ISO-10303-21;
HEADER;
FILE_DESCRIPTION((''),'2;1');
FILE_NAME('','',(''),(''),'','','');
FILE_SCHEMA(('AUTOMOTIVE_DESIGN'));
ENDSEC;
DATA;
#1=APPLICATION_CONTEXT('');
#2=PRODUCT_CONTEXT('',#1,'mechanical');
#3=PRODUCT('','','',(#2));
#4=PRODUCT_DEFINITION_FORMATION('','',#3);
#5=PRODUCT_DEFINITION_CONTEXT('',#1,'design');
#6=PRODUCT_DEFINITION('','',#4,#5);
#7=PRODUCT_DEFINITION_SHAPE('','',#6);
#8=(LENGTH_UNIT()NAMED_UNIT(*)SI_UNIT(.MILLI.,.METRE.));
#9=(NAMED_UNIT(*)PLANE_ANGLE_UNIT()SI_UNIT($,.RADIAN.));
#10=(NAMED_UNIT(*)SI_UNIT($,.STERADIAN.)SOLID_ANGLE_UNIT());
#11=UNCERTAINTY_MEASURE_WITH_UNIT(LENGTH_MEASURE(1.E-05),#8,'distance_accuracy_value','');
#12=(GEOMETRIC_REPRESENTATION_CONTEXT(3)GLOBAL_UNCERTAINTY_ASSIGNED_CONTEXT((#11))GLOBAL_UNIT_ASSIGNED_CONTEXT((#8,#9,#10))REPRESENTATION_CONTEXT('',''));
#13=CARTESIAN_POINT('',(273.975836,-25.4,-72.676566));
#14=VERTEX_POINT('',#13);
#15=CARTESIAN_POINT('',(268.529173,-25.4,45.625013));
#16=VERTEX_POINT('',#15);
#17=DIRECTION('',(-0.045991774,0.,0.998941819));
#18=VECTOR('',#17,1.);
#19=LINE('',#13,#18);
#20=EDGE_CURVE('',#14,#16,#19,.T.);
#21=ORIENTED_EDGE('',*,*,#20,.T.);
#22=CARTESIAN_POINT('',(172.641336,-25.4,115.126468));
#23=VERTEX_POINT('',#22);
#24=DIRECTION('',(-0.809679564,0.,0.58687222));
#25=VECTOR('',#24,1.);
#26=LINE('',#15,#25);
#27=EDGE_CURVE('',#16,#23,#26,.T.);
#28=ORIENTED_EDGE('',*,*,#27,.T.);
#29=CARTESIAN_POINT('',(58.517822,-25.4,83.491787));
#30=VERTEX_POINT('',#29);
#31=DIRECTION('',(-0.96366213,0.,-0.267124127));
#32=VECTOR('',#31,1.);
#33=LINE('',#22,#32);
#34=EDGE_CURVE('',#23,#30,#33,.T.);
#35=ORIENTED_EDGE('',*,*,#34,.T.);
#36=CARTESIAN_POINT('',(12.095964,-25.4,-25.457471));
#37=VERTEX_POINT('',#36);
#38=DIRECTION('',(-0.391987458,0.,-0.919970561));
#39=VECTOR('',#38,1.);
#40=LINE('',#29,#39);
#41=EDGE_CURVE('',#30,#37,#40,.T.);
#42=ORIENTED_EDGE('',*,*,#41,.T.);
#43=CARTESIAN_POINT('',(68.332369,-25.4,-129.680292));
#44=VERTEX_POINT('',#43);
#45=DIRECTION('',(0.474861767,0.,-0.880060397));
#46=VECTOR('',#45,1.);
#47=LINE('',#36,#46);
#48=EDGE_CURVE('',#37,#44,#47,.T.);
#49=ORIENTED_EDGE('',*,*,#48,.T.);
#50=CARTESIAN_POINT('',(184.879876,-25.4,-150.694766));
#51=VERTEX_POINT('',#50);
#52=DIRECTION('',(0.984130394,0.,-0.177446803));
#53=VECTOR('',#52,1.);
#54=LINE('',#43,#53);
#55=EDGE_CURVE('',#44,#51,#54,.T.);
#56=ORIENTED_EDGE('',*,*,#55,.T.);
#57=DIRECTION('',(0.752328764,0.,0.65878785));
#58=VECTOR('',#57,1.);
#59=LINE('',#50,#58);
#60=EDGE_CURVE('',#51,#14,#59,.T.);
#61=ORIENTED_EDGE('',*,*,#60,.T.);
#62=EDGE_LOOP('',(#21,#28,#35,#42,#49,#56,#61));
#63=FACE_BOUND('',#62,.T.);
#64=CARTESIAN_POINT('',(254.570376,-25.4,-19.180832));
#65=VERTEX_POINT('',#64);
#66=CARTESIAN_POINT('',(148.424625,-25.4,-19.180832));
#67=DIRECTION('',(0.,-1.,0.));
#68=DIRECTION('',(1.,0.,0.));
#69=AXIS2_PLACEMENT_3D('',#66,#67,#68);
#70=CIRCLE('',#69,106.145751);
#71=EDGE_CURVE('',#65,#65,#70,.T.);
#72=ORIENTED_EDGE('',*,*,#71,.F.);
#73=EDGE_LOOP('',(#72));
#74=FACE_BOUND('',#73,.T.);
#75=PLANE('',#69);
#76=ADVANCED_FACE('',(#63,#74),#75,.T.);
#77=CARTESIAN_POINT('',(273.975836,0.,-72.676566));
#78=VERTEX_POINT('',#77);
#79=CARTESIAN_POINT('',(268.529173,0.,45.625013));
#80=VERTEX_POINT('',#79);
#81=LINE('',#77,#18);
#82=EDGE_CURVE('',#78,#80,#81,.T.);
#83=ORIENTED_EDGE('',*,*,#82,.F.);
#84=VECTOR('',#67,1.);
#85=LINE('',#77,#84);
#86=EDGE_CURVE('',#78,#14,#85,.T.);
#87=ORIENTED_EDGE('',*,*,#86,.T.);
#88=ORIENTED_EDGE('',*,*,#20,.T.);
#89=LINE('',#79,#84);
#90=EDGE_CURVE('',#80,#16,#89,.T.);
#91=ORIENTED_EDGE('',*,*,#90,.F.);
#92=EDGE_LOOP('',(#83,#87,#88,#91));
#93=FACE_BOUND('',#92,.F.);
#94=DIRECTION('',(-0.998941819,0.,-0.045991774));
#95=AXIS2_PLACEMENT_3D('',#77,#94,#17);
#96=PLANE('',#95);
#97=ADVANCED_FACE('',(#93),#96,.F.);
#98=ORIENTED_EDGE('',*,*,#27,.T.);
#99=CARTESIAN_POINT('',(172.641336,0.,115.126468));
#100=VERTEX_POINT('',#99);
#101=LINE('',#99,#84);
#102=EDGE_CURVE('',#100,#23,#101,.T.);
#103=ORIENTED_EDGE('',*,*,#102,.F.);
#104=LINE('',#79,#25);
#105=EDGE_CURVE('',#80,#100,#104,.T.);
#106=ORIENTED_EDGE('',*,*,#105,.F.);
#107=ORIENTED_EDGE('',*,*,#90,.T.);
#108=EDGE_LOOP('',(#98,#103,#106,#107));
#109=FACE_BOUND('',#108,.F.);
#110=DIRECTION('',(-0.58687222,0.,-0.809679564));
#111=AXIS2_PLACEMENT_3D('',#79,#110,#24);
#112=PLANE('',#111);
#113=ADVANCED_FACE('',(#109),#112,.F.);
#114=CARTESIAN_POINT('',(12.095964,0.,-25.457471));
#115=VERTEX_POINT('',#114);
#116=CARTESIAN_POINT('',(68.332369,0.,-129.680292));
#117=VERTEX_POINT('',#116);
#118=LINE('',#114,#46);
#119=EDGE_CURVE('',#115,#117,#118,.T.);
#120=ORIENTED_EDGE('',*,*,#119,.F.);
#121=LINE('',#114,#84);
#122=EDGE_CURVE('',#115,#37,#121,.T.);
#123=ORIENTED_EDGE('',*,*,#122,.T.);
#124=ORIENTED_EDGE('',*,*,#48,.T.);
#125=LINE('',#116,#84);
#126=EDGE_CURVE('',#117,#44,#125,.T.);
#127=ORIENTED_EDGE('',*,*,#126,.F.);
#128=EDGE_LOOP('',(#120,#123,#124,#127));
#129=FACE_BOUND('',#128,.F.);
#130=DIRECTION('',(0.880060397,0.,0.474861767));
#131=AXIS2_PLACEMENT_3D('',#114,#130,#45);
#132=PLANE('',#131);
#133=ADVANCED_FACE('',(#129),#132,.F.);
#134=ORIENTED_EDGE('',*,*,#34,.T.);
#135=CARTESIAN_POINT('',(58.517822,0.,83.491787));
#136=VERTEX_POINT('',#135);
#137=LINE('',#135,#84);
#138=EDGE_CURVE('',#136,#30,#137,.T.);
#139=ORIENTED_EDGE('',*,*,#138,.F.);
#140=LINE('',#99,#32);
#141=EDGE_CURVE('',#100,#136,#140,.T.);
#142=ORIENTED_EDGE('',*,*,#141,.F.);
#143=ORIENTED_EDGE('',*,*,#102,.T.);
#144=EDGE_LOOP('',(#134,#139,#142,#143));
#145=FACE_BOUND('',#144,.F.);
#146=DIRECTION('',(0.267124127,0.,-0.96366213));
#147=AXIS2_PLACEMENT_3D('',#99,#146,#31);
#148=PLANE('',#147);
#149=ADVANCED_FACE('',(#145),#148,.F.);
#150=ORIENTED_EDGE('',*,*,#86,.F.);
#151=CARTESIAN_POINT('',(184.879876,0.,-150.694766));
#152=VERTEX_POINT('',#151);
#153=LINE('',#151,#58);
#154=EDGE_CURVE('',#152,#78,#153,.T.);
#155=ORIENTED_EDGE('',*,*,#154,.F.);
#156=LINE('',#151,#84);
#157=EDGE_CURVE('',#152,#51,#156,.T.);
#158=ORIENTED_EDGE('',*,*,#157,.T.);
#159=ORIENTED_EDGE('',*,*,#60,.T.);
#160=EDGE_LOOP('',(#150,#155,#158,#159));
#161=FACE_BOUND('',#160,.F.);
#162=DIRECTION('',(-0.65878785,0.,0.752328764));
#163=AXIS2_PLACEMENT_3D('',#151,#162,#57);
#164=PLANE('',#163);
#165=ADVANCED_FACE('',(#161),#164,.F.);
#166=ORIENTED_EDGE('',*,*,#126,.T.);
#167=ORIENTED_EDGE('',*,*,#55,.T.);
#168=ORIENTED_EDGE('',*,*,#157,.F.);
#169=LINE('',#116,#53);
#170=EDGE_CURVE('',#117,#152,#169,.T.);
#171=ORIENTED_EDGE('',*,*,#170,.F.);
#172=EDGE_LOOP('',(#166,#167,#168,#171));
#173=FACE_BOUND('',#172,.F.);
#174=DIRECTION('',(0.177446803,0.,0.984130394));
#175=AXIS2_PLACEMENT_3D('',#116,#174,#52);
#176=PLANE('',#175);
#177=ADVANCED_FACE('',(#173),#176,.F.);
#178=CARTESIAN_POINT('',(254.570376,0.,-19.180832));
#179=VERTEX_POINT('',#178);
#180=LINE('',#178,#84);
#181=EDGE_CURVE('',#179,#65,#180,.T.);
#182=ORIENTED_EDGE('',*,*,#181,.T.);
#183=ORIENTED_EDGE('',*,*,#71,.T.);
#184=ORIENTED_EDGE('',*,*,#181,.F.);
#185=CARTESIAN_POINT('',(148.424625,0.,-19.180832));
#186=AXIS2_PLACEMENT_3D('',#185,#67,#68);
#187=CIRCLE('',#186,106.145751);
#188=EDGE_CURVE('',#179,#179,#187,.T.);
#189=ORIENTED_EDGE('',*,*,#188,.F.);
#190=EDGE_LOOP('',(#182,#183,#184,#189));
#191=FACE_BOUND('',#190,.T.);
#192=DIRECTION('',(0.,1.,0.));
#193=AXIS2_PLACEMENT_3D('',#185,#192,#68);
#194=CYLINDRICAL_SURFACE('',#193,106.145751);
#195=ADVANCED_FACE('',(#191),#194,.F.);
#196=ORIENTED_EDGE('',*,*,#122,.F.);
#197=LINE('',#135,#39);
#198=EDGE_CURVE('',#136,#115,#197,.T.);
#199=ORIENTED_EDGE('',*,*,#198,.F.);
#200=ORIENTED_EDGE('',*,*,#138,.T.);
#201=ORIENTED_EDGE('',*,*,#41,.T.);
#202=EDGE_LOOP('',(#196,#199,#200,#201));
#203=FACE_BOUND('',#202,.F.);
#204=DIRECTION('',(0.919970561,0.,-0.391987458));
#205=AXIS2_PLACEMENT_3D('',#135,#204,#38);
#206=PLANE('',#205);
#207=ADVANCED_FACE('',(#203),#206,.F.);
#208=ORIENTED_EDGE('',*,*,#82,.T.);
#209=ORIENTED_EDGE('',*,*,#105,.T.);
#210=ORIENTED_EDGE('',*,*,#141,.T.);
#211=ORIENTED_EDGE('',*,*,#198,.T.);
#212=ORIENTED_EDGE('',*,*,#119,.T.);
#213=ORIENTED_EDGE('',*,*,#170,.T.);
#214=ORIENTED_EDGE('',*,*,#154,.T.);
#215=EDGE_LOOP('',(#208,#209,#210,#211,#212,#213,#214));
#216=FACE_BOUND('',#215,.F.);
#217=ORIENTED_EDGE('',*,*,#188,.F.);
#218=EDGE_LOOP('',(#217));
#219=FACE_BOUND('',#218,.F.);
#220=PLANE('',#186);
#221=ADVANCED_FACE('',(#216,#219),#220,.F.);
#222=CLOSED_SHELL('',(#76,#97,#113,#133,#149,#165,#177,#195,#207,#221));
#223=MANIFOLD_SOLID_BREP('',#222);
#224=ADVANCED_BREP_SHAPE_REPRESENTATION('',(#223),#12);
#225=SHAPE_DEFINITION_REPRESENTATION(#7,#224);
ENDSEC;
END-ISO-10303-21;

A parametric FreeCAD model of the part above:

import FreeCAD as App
import Part
import Sketcher
from FreeCAD import Vector
Q = App.Units.Quantity

doc = App.newDocument("Part")
params = doc.addObject("Spreadsheet::Sheet", "Params")
for row, (alias, value) in enumerate([
    ("pad1_length", "1 in"),
], start=1):
    params.set(f"A{row}", alias)
    params.set(f"B{row}", "=" + value)
    params.setAlias(f"B{row}", alias)

body = doc.addObject("PartDesign::Body", "Body")

sketch1 = doc.addObject("Sketcher::SketchObject", "Sketch")
body.addObject(sketch1)
sketch1.AttachmentSupport = (doc.XZ_Plane, [""])
sketch1.MapMode = "FlatFace"
sketch1.addGeometry([
    Part.LineSegment(Vector(173, 115, 0), Vector(59, 83, 0)),
    Part.LineSegment(Vector(59, 83, 0), Vector(12, -25, 0)),
    Part.LineSegment(Vector(12, -25, 0), Vector(68, -130, 0)),
    Part.LineSegment(Vector(68, -130, 0), Vector(185, -151, 0)),
    Part.LineSegment(Vector(185, -151, 0), Vector(274, -73, 0)),
    Part.LineSegment(Vector(274, -73, 0), Vector(269, 46, 0)),
    Part.LineSegment(Vector(269, 46, 0), Vector(173, 115, 0)),
    Part.Circle(Vector(148, -19, 0), Vector(0, 0, 1), 106),
], False)
sketch1.addConstraint([
    Sketcher.Constraint("Coincident", 0, 2, 1, 1),
    Sketcher.Constraint("Coincident", 1, 2, 2, 1),
    Sketcher.Constraint("Coincident", 2, 2, 3, 1),
    Sketcher.Constraint("Coincident", 3, 2, 4, 1),
    Sketcher.Constraint("Coincident", 4, 2, 5, 1),
    Sketcher.Constraint("Coincident", 5, 2, 6, 1),
    Sketcher.Constraint("Coincident", 6, 2, 0, 1),
    Sketcher.Constraint("Equal", 0, 1),
    Sketcher.Constraint("Equal", 1, 2),
    Sketcher.Constraint("Equal", 2, 3),
    Sketcher.Constraint("Equal", 3, 4),
    Sketcher.Constraint("Equal", 4, 5),
    Sketcher.Constraint("Equal", 5, 6),
    Sketcher.Constraint("Diameter", 7, Q("212.291502 mm")),
    Sketcher.Constraint("DistanceY", 3, 2, 4, 2, Q("78.0182 mm")),
    Sketcher.Constraint("DistanceY", 7, 3, 6, 2, Q("134.3073 mm")),
    Sketcher.Constraint("DistanceX", 6, 2, 4, 2, Q("101.3345 mm")),
    Sketcher.Constraint("DistanceY", 7, 3, -1, 1, Q("19.180832 mm")),
    Sketcher.Constraint("DistanceY", 1, 2, -1, 1, Q("25.457471 mm")),
    Sketcher.Constraint("DistanceX", -1, 1, 2, 2, Q("68.332369 mm")),
    Sketcher.Constraint("DistanceY", 2, 2, -1, 1, Q("129.680292 mm")),
    Sketcher.Constraint("DistanceY", 7, 3, 0, 2, Q("102.672619 mm")),
    Sketcher.Constraint("DistanceX", 1, 2, 7, 3, Q("136.328661 mm")),
    Sketcher.Constraint("DistanceX", 7, 3, 3, 2, Q("36.455251 mm")),
])
pad1 = doc.addObject("PartDesign::Pad", "Pad")
body.addObject(pad1)
pad1.Profile = sketch1
pad1.setExpression("Length", "Params.pad1_length")

doc.recompute()
